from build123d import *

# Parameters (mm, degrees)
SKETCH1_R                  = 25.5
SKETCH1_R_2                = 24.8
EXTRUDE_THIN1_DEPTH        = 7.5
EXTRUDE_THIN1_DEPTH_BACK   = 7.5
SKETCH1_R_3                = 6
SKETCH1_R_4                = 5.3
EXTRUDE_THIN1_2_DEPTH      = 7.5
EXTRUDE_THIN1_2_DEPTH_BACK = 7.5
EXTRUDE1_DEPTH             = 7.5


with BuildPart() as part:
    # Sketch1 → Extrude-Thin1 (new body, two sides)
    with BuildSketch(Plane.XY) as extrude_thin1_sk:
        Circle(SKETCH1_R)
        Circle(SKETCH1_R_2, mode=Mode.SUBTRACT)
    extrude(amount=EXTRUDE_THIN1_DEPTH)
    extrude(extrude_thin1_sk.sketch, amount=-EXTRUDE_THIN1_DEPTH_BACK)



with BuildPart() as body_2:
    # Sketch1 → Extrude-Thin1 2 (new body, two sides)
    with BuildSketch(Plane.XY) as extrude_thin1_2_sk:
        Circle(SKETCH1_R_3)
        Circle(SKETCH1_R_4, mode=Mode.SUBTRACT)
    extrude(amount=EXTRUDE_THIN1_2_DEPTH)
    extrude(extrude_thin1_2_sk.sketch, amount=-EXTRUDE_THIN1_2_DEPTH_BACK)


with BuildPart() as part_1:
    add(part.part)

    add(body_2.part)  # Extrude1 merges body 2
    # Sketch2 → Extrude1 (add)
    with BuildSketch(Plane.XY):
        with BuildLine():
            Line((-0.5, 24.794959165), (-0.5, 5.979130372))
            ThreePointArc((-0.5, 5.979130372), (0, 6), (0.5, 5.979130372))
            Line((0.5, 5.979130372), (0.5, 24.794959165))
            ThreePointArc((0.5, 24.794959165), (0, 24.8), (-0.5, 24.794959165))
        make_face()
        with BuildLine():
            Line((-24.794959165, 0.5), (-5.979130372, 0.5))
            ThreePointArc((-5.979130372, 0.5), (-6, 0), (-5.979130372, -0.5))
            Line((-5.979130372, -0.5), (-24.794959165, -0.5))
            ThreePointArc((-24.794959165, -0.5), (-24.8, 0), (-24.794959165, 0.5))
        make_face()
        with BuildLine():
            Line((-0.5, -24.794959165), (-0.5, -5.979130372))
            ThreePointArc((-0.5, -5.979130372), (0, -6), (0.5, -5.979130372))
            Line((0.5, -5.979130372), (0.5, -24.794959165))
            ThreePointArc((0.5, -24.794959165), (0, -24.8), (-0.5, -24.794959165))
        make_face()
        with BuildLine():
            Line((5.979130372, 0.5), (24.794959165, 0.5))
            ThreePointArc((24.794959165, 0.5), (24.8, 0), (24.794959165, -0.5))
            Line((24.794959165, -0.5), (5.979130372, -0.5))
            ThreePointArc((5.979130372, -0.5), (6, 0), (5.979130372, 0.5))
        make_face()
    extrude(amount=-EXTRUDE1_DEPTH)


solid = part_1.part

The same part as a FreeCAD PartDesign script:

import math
import FreeCAD as App
import Part
import Sketcher

doc = App.newDocument("Part")
body = doc.addObject("PartDesign::Body", "Body")

# Sketch on XY plane
sketch1 = body.newObject("Sketcher::SketchObject", "Sketch")
sketch1.AttachmentSupport = (doc.getObject("XY_Plane"), [""])
sketch1.MapMode = "FlatFace"
sketch1.addGeometry(Part.Circle(App.Vector(0, 0, 0), App.Vector(0, 0, 1), 25.5), False)
sketch1.addGeometry(Part.Circle(App.Vector(0, 0, 0), App.Vector(0, 0, 1), 24.8), False)
sketch1.addConstraint(Sketcher.Constraint("Coincident", 0, 3, -1, 1))
sketch1.addConstraint(Sketcher.Constraint("Coincident", 1, 3, -1, 1))
sketch1.addConstraint(Sketcher.Constraint("Diameter", 0, 51.0))
sketch1.addConstraint(Sketcher.Constraint("Diameter", 1, 49.6))
pad1 = body.newObject("PartDesign::Pad", "Pad")
pad1.Profile = sketch1
pad1.Type = "TwoLengths"
pad1.Length = 7.5
pad1.Length2 = 7.5
body2 = doc.addObject("PartDesign::Body", "Body001")

# Sketch on XY plane
sketch2 = body2.newObject("Sketcher::SketchObject", "Sketch001")
sketch2.AttachmentSupport = (doc.getObject("XY_Plane001"), [""])
sketch2.MapMode = "FlatFace"
sketch2.addGeometry(Part.Circle(App.Vector(0, 0, 0), App.Vector(0, 0, 1), 6), False)
sketch2.addGeometry(Part.Circle(App.Vector(0, 0, 0), App.Vector(0, 0, 1), 5.3), False)
sketch2.addConstraint(Sketcher.Constraint("Coincident", 0, 3, -1, 1))
sketch2.addConstraint(Sketcher.Constraint("Coincident", 1, 3, -1, 1))
sketch2.addConstraint(Sketcher.Constraint("Diameter", 0, 12.0))
sketch2.addConstraint(Sketcher.Constraint("Diameter", 1, 10.6))
pad2 = body2.newObject("PartDesign::Pad", "Pad001")
pad2.Profile = sketch2
pad2.Type = "TwoLengths"
pad2.Length = 7.5
pad2.Length2 = 7.5
body.AllowCompound = True
doc.recompute()

boolean = body.newObject("PartDesign::Boolean", "Boolean")
boolean.Type = "Fuse"
boolean.addObjects([body2])

# Sketch on XY plane
sketch3 = body.newObject("Sketcher::SketchObject", "Sketch002")
sketch3.AttachmentSupport = (doc.getObject("XY_Plane"), [""])
sketch3.MapMode = "FlatFace"
sketch3.addGeometry(Part.LineSegment(App.Vector(-0.5, 24.794959, 0), App.Vector(-0.5, 5.97913, 0)), False)
sketch3.addGeometry(Part.ArcOfCircle(Part.Circle(App.Vector(0, 0, 0), App.Vector(0, 0, 1), 6), math.radians(85.219808), math.radians(94.780192)), False)
sketch3.addGeometry(Part.LineSegment(App.Vector(0.5, 5.97913, 0), App.Vector(0.5, 24.794959, 0)), False)
sketch3.addGeometry(Part.ArcOfCircle(Part.Circle(App.Vector(0, 0.000001, 0), App.Vector(0, 0, 1), 24.799999), math.radians(88.844765), math.radians(91.155235)), False)
sketch3.addGeometry(Part.LineSegment(App.Vector(-5.97913, 0.5, 0), App.Vector(-24.794959, 0.5, 0)), False)
sketch3.addGeometry(Part.ArcOfCircle(Part.Circle(App.Vector(-0.000001, 0, 0), App.Vector(0, 0, 1), 24.799999), math.radians(178.844765), math.radians(181.155235)), False)
sketch3.addGeometry(Part.LineSegment(App.Vector(-24.794959, -0.5, 0), App.Vector(-5.97913, -0.5, 0)), False)
sketch3.addGeometry(Part.ArcOfCircle(Part.Circle(App.Vector(0, 0, 0), App.Vector(0, 0, 1), 6), math.radians(175.219808), math.radians(184.780192)), False)
sketch3.addGeometry(Part.LineSegment(App.Vector(-0.5, -5.97913, 0), App.Vector(-0.5, -24.794959, 0)), False)
sketch3.addGeometry(Part.ArcOfCircle(Part.Circle(App.Vector(0, -0.000001, 0), App.Vector(0, 0, 1), 24.799999), math.radians(-91.155235), math.radians(-88.844765)), False)
sketch3.addGeometry(Part.LineSegment(App.Vector(0.5, -24.794959, 0), App.Vector(0.5, -5.97913, 0)), False)
sketch3.addGeometry(Part.ArcOfCircle(Part.Circle(App.Vector(0, 0, 0), App.Vector(0, 0, 1), 6), math.radians(-94.780192), math.radians(-85.219808)), False)
sketch3.addGeometry(Part.LineSegment(App.Vector(24.794959, 0.5, 0), App.Vector(5.97913, 0.5, 0)), False)
sketch3.addGeometry(Part.ArcOfCircle(Part.Circle(App.Vector(0, 0, 0), App.Vector(0, 0, 1), 6), math.radians(-4.780192), math.radians(4.780192)), False)
sketch3.addGeometry(Part.LineSegment(App.Vector(5.97913, -0.5, 0), App.Vector(24.794959, -0.5, 0)), False)
sketch3.addGeometry(Part.ArcOfCircle(Part.Circle(App.Vector(0.000001, 0, 0), App.Vector(0, 0, 1), 24.799999), math.radians(-1.155235), math.radians(1.155235)), False)
sketch3.addConstraint(Sketcher.Constraint("Coincident", 0, 2, 1, 2))
sketch3.addConstraint(Sketcher.Constraint("Coincident", 1, 1, 2, 1))
sketch3.addConstraint(Sketcher.Constraint("Coincident", 2, 2, 3, 1))
sketch3.addConstraint(Sketcher.Constraint("Coincident", 3, 2, 0, 1))
sketch3.addConstraint(Sketcher.Constraint("Coincident", 4, 2, 5, 1))
sketch3.addConstraint(Sketcher.Constraint("Coincident", 5, 2, 6, 1))
sketch3.addConstraint(Sketcher.Constraint("Coincident", 6, 2, 7, 2))
sketch3.addConstraint(Sketcher.Constraint("Coincident", 7, 1, 4, 1))
sketch3.addConstraint(Sketcher.Constraint("Coincident", 8, 2, 9, 1))
sketch3.addConstraint(Sketcher.Constraint("Coincident", 9, 2, 10, 1))
sketch3.addConstraint(Sketcher.Constraint("Coincident", 10, 2, 11, 2))
sketch3.addConstraint(Sketcher.Constraint("Coincident", 11, 1, 8, 1))
sketch3.addConstraint(Sketcher.Constraint("Coincident", 12, 2, 13, 2))
sketch3.addConstraint(Sketcher.Constraint("Coincident", 13, 1, 14, 1))
sketch3.addConstraint(Sketcher.Constraint("Coincident", 14, 2, 15, 1))
sketch3.addConstraint(Sketcher.Constraint("Coincident", 15, 2, 12, 1))
sketch3.addConstraint(Sketcher.Constraint("Vertical", 0))
sketch3.addConstraint(Sketcher.Constraint("Vertical", 2))
sketch3.addConstraint(Sketcher.Constraint("Horizontal", 4))
sketch3.addConstraint(Sketcher.Constraint("Horizontal", 6))
sketch3.addConstraint(Sketcher.Constraint("Vertical", 8))
sketch3.addConstraint(Sketcher.Constraint("Vertical", 10))
sketch3.addConstraint(Sketcher.Constraint("Horizontal", 12))
sketch3.addConstraint(Sketcher.Constraint("Horizontal", 14))
sketch3.addConstraint(Sketcher.Constraint("Coincident", 1, 3, -1, 1))
sketch3.addConstraint(Sketcher.Constraint("Coincident", 3, 3, -1, 1))
sketch3.addConstraint(Sketcher.Constraint("Coincident", 5, 3, -1, 1))
sketch3.addConstraint(Sketcher.Constraint("Coincident", 7, 3, -1, 1))
sketch3.addConstraint(Sketcher.Constraint("Coincident", 9, 3, -1, 1))
sketch3.addConstraint(Sketcher.Constraint("Coincident", 11, 3, -1, 1))
sketch3.addConstraint(Sketcher.Constraint("Coincident", 13, 3, -1, 1))
sketch3.addConstraint(Sketcher.Constraint("Coincident", 15, 3, -1, 1))
sketch3.addConstraint(Sketcher.Constraint("Equal", 3, 5))
sketch3.addConstraint(Sketcher.Constraint("Equal", 1, 7))
sketch3.addConstraint(Sketcher.Constraint("Equal", 5, 9))
sketch3.addConstraint(Sketcher.Constraint("Equal", 7, 11))
sketch3.addConstraint(Sketcher.Constraint("Equal", 11, 13))
sketch3.addConstraint(Sketcher.Constraint("Equal", 9, 15))
sketch3.addConstraint(Sketcher.Constraint("Horizontal", 0, 2, 1, 1))
sketch3.addConstraint(Sketcher.Constraint("Horizontal", 8, 2, 9, 2))
sketch3.addConstraint(Sketcher.Constraint("Horizontal", 7, 1, 12, 2))
sketch3.addConstraint(Sketcher.Constraint("Horizontal", 6, 2, 13, 1))
sketch3.addConstraint(Sketcher.Constraint("Vertical", 4, 2, 5, 2))
sketch3.addConstraint(Sketcher.Constraint("Vertical", 3, 2, 8, 2))
sketch3.addConstraint(Sketcher.Constraint("Equal", 14, 0))
sketch3.addConstraint(Sketcher.Constraint("Radius", 1, 6.0))
sketch3.addConstraint(Sketcher.Constraint("Radius", 3, 24.799999))
sketch3.addConstraint(Sketcher.Constraint("DistanceX", 0, 2, 1, 1, 1.0))
pad3 = body.newObject("PartDesign::Pad", "Pad002")
pad3.Profile = sketch3
pad3.Length = 7.5
pad3.Reversed = True

doc.recompute()
